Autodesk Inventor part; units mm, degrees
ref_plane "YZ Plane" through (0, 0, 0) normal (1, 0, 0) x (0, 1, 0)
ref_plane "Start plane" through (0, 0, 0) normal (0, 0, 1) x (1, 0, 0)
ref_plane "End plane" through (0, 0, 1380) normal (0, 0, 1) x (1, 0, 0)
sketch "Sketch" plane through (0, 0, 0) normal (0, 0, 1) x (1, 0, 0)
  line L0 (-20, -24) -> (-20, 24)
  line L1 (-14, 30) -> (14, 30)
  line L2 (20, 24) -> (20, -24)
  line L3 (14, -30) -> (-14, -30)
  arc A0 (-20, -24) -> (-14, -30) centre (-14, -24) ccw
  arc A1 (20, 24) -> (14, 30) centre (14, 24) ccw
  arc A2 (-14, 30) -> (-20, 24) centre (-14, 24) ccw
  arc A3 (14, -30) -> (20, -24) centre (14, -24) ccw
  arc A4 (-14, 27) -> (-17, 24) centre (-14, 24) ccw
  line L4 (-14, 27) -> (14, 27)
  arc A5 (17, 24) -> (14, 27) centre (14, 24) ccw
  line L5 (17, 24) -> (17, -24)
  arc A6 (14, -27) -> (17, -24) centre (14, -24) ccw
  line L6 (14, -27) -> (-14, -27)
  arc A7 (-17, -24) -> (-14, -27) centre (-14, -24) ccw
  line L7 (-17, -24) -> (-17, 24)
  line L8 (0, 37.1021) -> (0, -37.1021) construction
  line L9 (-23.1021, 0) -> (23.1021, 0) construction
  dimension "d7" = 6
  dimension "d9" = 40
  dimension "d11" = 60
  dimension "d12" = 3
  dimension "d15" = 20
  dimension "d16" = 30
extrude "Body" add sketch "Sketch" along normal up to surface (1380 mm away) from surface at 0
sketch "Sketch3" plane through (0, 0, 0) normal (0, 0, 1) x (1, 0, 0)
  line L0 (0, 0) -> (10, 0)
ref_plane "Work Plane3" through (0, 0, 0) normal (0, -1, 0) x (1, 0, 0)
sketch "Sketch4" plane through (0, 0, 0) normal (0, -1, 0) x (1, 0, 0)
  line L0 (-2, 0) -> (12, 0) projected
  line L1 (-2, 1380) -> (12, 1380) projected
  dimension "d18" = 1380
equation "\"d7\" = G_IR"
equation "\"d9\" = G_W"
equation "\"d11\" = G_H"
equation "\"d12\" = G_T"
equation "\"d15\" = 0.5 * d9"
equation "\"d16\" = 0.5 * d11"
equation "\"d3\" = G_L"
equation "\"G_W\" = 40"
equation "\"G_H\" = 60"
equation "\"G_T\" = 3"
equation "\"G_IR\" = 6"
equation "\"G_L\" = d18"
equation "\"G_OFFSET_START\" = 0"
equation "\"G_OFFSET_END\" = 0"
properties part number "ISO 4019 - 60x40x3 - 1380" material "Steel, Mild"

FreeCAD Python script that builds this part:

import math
import FreeCAD as App
import Part
import Sketcher

V = App.Vector

doc = App.newDocument("Part")
body = doc.addObject("PartDesign::Body", "Body")

sketch1 = body.newObject("Sketcher::SketchObject", "Sketch")
sketch1.AttachmentSupport = (doc.getObject("XY_Plane"), [""])
sketch1.MapMode = "FlatFace"
sketch1.addGeometry([
    Part.LineSegment(V(-20, 24, 0), V(-20, -24, 0)),
    Part.ArcOfCircle(Part.Circle(V(-14, -24, 0), V(0, 0, 1), 6), math.radians(180), math.radians(270)),
    Part.LineSegment(V(-14, -30, 0), V(14, -30, 0)),
    Part.ArcOfCircle(Part.Circle(V(14, -24, 0), V(0, 0, 1), 6), math.radians(-90), math.radians(0)),
    Part.LineSegment(V(20, -24, 0), V(20, 24, 0)),
    Part.ArcOfCircle(Part.Circle(V(14, 24, 0), V(0, 0, 1), 6), math.radians(0), math.radians(90)),
    Part.LineSegment(V(14, 30, 0), V(-14, 30, 0)),
    Part.ArcOfCircle(Part.Circle(V(-14, 24, 0), V(0, 0, 1), 6), math.radians(90), math.radians(180)),
    Part.ArcOfCircle(Part.Circle(V(-14, 24, 0), V(0, 0, 1), 3), math.radians(90), math.radians(180)),
    Part.LineSegment(V(-14, 27, 0), V(14, 27, 0)),
    Part.ArcOfCircle(Part.Circle(V(14, 24, 0), V(0, 0, 1), 3), math.radians(0), math.radians(90)),
    Part.LineSegment(V(17, 24, 0), V(17, -24, 0)),
    Part.ArcOfCircle(Part.Circle(V(14, -24, 0), V(0, 0, 1), 3), math.radians(-90), math.radians(0)),
    Part.LineSegment(V(14, -27, 0), V(-14, -27, 0)),
    Part.ArcOfCircle(Part.Circle(V(-14, -24, 0), V(0, 0, 1), 3), math.radians(180), math.radians(270)),
    Part.LineSegment(V(-17, -24, 0), V(-17, 24, 0)),
], False)
sketch1.addConstraint([
    Sketcher.Constraint("Tangent", 0, 2, 1, 1),
    Sketcher.Constraint("Tangent", 1, 2, 2, 1),
    Sketcher.Constraint("Tangent", 2, 2, 3, 1),
    Sketcher.Constraint("Tangent", 3, 2, 4, 1),
    Sketcher.Constraint("Tangent", 4, 2, 5, 1),
    Sketcher.Constraint("Tangent", 5, 2, 6, 1),
    Sketcher.Constraint("Tangent", 6, 2, 7, 1),
    Sketcher.Constraint("Tangent", 7, 2, 0, 1),
    Sketcher.Constraint("Tangent", 8, 1, 9, 1),
    Sketcher.Constraint("Tangent", 9, 2, 10, 2),
    Sketcher.Constraint("Tangent", 10, 1, 11, 1),
    Sketcher.Constraint("Tangent", 11, 2, 12, 2),
    Sketcher.Constraint("Tangent", 12, 1, 13, 1),
    Sketcher.Constraint("Tangent", 13, 2, 14, 2),
    Sketcher.Constraint("Tangent", 14, 1, 15, 1),
    Sketcher.Constraint("Tangent", 15, 2, 8, 2),
    Sketcher.Constraint("Vertical", 0),
    Sketcher.Constraint("Horizontal", 2),
    Sketcher.Constraint("Vertical", 4),
    Sketcher.Constraint("Horizontal", 6),
    Sketcher.Constraint("Horizontal", 9),
    Sketcher.Constraint("Vertical", 11),
    Sketcher.Constraint("Horizontal", 13),
    Sketcher.Constraint("Vertical", 15),
    Sketcher.Constraint("Coincident", 8, 3, 7, 3),
    Sketcher.Constraint("Coincident", 10, 3, 5, 3),
    Sketcher.Constraint("Coincident", 12, 3, 3, 3),
    Sketcher.Constraint("Equal", 1, 3),
    Sketcher.Constraint("Equal", 3, 5),
    Sketcher.Constraint("Equal", 5, 7),
    Sketcher.Constraint("Equal", 12, 14),
    Sketcher.Constraint("Symmetric", 1, 3, 5, 3, -1, 1),
    Sketcher.Constraint("Radius", 1, 6.0),
    Sketcher.Constraint("Radius", 8, 3.0),
    Sketcher.Constraint("DistanceX", 0, 2, -1, 1, 20.0),
    Sketcher.Constraint("DistanceY", 1, 2, -1, 1, 30.0),
])
pad1 = body.newObject("PartDesign::Pad", "Pad")
pad1.Profile = sketch1
pad1.Length = 1380

doc.recompute()
